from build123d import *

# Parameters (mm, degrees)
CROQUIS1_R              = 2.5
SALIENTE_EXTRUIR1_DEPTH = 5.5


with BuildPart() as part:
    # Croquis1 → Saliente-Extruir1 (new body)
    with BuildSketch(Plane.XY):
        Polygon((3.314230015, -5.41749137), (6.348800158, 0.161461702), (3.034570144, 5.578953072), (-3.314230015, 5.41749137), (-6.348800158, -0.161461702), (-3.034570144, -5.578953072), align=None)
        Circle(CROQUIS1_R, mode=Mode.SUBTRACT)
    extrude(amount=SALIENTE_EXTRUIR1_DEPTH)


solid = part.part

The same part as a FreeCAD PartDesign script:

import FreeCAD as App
import Part
import Sketcher

V = App.Vector
Q = App.Units.Quantity

doc = App.newDocument("Part")
body = doc.addObject("PartDesign::Body", "Body")

# Sketch on XY plane
sketch1 = doc.addObject("Sketcher::SketchObject", "Sketch")
body.addObject(sketch1)
sketch1.AttachmentSupport = (doc.XY_Plane, [""])
sketch1.MapMode = "FlatFace"
sketch1.addGeometry(Part.LineSegment(V(3.3, -5.4, 0), V(6.3, 0.2, 0)), False)
sketch1.addGeometry(Part.LineSegment(V(6.3, 0.2, 0), V(3, 5.6, 0)), False)
sketch1.addGeometry(Part.LineSegment(V(3, 5.6, 0), V(-3.3, 5.4, 0)), False)
sketch1.addGeometry(Part.LineSegment(V(-3.3, 5.4, 0), V(-6.3, -0.2, 0)), False)
sketch1.addGeometry(Part.LineSegment(V(-6.3, -0.2, 0), V(-3, -5.6, 0)), False)
sketch1.addGeometry(Part.LineSegment(V(-3, -5.6, 0), V(3.3, -5.4, 0)), False)
sketch1.addGeometry(Part.Circle(V(0, 0, 0), V(0, 0, 1), 2.5), False)
sketch1.addConstraint(Sketcher.Constraint("Coincident", 0, 2, 1, 1))
sketch1.addConstraint(Sketcher.Constraint("Coincident", 1, 2, 2, 1))
sketch1.addConstraint(Sketcher.Constraint("Coincident", 2, 2, 3, 1))
sketch1.addConstraint(Sketcher.Constraint("Coincident", 3, 2, 4, 1))
sketch1.addConstraint(Sketcher.Constraint("Coincident", 4, 2, 5, 1))
sketch1.addConstraint(Sketcher.Constraint("Coincident", 5, 2, 0, 1))
sketch1.addConstraint(Sketcher.Constraint("Coincident", 6, 3, -1, 1))
sketch1.addConstraint(Sketcher.Constraint("Symmetric", 0, 2, 3, 2, -1, 1))
sketch1.addConstraint(Sketcher.Constraint("Symmetric", 1, 2, 4, 2, -1, 1))
sketch1.addConstraint(Sketcher.Constraint("Symmetric", 2, 2, 5, 2, -1, 1))
sketch1.addConstraint(Sketcher.Constraint("Equal", 0, 1))
sketch1.addConstraint(Sketcher.Constraint("Equal", 1, 2))
sketch1.addConstraint(Sketcher.Constraint("Diameter", 6, Q("5 mm")))
sketch1.addConstraint(Sketcher.Constraint("DistanceX", -1, 1, 0, 2, Q("6.3488 mm")))
sketch1.addConstraint(Sketcher.Constraint("DistanceX", 2, 2, 1, 2, Q("6.3488 mm")))
sketch1.addConstraint(Sketcher.Constraint("DistanceY", -1, 1, 0, 2, Q("0.161462 mm")))
sketch1.addConstraint(Sketcher.Constraint("DistanceX", -1, 1, 1, 2, Q("3.03457 mm")))
pad1 = doc.addObject("PartDesign::Pad", "Pad")
body.addObject(pad1)
pad1.Profile = sketch1
pad1.Length = 5.5

doc.recompute()
